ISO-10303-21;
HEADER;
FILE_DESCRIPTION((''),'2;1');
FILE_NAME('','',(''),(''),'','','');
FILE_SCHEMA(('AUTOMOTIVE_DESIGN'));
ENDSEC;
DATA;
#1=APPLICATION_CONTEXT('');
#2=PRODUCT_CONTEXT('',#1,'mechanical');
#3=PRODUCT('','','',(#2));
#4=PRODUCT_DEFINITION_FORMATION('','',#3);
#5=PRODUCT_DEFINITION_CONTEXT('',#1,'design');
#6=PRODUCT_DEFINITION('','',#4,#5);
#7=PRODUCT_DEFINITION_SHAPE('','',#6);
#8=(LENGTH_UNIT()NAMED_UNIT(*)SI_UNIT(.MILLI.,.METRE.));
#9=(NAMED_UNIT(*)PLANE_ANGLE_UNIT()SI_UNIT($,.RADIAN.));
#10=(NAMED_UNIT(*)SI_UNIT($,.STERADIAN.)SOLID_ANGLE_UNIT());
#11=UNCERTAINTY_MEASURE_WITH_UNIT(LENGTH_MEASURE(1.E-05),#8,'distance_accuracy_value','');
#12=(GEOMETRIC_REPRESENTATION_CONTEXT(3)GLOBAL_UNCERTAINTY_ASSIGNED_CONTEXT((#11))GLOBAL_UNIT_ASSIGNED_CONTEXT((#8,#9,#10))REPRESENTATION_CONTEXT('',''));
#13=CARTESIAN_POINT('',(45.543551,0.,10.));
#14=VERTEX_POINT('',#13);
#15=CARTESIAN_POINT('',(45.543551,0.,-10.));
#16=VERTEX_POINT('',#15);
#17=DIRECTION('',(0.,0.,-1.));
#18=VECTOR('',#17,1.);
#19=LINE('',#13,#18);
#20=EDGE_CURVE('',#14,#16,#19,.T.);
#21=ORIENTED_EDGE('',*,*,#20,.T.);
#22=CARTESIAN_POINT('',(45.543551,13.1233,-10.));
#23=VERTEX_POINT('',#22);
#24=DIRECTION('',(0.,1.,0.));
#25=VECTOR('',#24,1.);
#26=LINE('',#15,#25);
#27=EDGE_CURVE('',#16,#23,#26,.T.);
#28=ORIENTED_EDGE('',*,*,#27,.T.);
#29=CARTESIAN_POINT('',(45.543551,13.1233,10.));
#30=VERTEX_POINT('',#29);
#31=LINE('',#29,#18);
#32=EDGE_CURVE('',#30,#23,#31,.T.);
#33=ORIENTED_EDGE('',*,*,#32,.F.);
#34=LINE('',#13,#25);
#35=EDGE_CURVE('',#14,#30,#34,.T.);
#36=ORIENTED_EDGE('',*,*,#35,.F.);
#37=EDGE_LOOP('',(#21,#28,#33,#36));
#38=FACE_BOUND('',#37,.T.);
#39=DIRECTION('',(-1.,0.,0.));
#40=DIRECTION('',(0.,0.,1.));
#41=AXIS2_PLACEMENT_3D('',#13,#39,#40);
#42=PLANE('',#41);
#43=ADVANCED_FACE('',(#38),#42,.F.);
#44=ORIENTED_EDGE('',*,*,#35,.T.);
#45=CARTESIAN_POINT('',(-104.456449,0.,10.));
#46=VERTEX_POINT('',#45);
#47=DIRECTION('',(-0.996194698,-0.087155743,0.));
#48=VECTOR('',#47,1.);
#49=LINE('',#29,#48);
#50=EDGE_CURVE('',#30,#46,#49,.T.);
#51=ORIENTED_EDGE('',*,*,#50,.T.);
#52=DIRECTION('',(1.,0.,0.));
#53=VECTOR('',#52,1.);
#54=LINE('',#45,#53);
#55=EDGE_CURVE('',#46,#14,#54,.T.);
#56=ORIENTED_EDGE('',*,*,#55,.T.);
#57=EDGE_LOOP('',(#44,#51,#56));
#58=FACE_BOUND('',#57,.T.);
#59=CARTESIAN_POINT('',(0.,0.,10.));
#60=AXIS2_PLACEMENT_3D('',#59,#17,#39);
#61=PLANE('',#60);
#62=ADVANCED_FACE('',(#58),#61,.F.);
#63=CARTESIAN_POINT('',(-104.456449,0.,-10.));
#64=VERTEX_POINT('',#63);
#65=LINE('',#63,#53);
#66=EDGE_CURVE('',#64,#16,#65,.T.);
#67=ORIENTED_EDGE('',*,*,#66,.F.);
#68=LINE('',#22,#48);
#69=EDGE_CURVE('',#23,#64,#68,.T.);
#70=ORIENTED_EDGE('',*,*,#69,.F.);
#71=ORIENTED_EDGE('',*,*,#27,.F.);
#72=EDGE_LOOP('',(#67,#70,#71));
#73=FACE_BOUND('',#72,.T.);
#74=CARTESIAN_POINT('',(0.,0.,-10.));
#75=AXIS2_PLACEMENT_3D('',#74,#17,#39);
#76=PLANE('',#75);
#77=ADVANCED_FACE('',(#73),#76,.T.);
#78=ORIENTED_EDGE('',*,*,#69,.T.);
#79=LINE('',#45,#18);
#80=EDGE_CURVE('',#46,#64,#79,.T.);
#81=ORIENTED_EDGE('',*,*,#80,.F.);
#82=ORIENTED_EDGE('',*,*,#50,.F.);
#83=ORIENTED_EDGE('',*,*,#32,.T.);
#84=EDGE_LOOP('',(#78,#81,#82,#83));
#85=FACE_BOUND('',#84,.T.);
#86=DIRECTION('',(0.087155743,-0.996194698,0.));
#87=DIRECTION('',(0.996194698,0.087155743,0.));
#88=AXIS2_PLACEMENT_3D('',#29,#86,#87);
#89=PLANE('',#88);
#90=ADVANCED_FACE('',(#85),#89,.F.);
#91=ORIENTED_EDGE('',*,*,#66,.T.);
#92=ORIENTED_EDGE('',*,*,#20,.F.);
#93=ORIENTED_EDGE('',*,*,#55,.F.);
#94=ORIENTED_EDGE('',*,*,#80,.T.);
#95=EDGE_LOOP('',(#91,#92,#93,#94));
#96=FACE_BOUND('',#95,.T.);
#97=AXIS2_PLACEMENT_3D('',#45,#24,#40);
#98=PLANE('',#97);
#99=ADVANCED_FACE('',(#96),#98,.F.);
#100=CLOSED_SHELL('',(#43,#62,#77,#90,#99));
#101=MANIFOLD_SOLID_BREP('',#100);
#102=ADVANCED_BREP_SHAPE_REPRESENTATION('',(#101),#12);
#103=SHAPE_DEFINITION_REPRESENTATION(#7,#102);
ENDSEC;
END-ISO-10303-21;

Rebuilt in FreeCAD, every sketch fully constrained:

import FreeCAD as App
import Part
import Sketcher
from FreeCAD import Vector
Q = App.Units.Quantity


def add_polygon(sketch, points):
    """Adds a closed chain of lines whose ends are joined by coincident constraints."""
    first, n = sketch.GeometryCount, len(points)
    for a, b in zip(points, points[1:] + points[:1]):
        sketch.addGeometry(Part.LineSegment(App.Vector(*a, 0), App.Vector(*b, 0)), False)
    for i in range(n):
        sketch.addConstraint(Sketcher.Constraint("Coincident", first + i, 2, first + (i + 1) % n, 1))

doc = App.newDocument("Part")
params = doc.addObject("Spreadsheet::Sheet", "Params")
for row, (alias, value) in enumerate([
    ("sketch1_width", "150 mm"),
    ("pad1_length", "20 mm"),
], start=1):
    params.set(f"A{row}", alias)
    params.set(f"B{row}", "=" + value)
    params.setAlias(f"B{row}", alias)

body = doc.addObject("PartDesign::Body", "Body")

sketch1 = body.newObject("Sketcher::SketchObject", "Sketch")
sketch1.AttachmentSupport = (doc.getObject("XY_Plane"), [""])
sketch1.MapMode = "FlatFace"
add_polygon(sketch1, [(-104, 0), (46, 0), (46, 13)])
sketch1.addConstraint([
    Sketcher.Constraint("Horizontal", 0),
    Sketcher.Constraint("Vertical", 1),
    Sketcher.Constraint("PointOnObject", 0, 2, -1),
    Sketcher.Constraint("DistanceX", 0, 1, 0, 2, 150.0),
    Sketcher.Constraint("Angle", 2, Q("-175 deg")),
    Sketcher.Constraint("DistanceX", -1, 1, 0, 2, 45.543551),
])
sketch1.setExpression("Constraints[6]", "Params.sketch1_width")
pad1 = body.newObject("PartDesign::Pad", "Pad")
pad1.Profile = sketch1
pad1.setExpression("Length", "Params.pad1_length")
pad1.Midplane = True

doc.recompute()
